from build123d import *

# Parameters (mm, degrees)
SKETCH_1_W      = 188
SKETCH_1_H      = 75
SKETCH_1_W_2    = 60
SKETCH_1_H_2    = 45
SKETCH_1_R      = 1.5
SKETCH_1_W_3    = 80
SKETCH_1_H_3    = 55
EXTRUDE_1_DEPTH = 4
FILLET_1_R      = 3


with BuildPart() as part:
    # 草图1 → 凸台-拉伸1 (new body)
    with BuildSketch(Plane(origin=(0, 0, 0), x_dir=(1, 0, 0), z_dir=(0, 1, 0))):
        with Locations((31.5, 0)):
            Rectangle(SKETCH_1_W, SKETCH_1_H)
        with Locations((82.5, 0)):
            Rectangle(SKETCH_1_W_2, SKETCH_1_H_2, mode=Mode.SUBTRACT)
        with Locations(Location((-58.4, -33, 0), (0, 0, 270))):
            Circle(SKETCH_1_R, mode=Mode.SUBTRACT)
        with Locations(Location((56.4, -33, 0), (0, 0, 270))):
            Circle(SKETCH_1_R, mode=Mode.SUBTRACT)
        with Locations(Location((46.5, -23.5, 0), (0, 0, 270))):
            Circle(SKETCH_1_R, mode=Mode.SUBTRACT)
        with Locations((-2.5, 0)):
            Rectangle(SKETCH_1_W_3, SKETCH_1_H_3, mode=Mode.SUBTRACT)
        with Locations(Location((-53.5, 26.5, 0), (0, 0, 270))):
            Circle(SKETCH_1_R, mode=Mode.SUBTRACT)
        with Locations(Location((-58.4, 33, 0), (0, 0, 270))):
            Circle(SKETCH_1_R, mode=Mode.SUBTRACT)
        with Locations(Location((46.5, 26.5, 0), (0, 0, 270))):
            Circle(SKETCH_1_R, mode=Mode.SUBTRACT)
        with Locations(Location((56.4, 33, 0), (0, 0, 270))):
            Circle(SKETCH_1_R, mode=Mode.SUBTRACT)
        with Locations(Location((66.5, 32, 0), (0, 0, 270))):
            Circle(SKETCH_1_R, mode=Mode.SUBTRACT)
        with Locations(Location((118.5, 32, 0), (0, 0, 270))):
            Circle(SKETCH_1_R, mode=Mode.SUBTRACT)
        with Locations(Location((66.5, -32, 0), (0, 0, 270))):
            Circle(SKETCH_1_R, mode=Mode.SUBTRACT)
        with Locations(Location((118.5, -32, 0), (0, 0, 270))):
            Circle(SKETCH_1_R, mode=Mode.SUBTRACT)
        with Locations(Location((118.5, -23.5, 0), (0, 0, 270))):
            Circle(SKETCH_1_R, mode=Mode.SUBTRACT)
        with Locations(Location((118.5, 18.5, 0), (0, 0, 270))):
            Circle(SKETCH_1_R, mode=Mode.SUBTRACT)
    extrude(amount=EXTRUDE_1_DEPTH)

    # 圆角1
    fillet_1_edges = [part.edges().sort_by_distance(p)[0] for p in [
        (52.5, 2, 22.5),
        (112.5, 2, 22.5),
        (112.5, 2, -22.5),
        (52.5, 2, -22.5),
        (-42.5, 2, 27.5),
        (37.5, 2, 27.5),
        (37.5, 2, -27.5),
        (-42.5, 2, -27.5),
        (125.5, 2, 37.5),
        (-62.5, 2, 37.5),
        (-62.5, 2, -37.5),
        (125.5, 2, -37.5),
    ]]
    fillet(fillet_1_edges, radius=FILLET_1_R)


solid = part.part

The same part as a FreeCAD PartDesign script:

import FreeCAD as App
import Part
import Sketcher
from FreeCAD import Vector


def edges_at(feature, points):
    """Names of the edges that pass closest to the given points."""
    edges = feature.Shape.Edges
    near = lambda p: min(range(len(edges)), key=lambda i: edges[i].distToShape(Part.Vertex(*p))[0])
    return sorted({f"Edge{near(p) + 1}" for p in points})

doc = App.newDocument("Part")
params = doc.addObject("Spreadsheet::Sheet", "Params")
for row, (alias, value) in enumerate([
    ("sketch1_diameter", "3 mm"),
    ("sketch1_width", "188 mm"),
    ("sketch1_width2", "80 mm"),
    ("sketch1_width3", "60 mm"),
    ("sketch1_height", "75 mm"),
    ("pad1_length", "4 mm"),
    ("fillet_radius", "3 mm"),
], start=1):
    params.set(f"A{row}", alias)
    params.set(f"B{row}", "=" + value)
    params.setAlias(f"B{row}", alias)

body = doc.addObject("PartDesign::Body", "Body")

# Sketch on XZ plane
sketch1 = body.newObject("Sketcher::SketchObject", "Sketch")
sketch1.AttachmentSupport = (doc.getObject("XZ_Plane"), [""])
sketch1.MapMode = "FlatFace"
sketch1.addGeometry([
    Part.LineSegment(Vector(-62.5, -37.5, 0), Vector(-62.5, 37.5, 0)),  # 0
    Part.LineSegment(Vector(-62.5, 37.5, 0), Vector(125.5, 37.5, 0)),  # 1
    Part.LineSegment(Vector(125.5, 37.5, 0), Vector(125.5, -37.5, 0)),  # 2
    Part.LineSegment(Vector(125.5, -37.5, 0), Vector(-62.5, -37.5, 0)),  # 3
    Part.Circle(Vector(-58.4, 33, 0), Vector(0, 0, 1), 1.5),  # 4
    Part.Circle(Vector(56.4, 33, 0), Vector(0, 0, 1), 1.5),  # 5
    Part.Circle(Vector(66.5, 32, 0), Vector(0, 0, 1), 1.5),  # 6
    Part.Circle(Vector(46.5, 23.5, 0), Vector(0, 0, 1), 1.5),  # 7
    Part.Circle(Vector(118.5, 32, 0), Vector(0, 0, 1), 1.5),  # 8
    Part.Circle(Vector(118.5, 23.5, 0), Vector(0, 0, 1), 1.5),  # 9
    Part.LineSegment(Vector(37.5, 27.5, 0), Vector(-42.5, 27.5, 0)),  # 10
    Part.LineSegment(Vector(-42.5, 27.5, 0), Vector(-42.5, -27.5, 0)),  # 11
    Part.LineSegment(Vector(-42.5, -27.5, 0), Vector(37.5, -27.5, 0)),  # 12
    Part.LineSegment(Vector(37.5, -27.5, 0), Vector(37.5, 27.5, 0)),  # 13
    Part.Circle(Vector(-53.5, -26.5, 0), Vector(0, 0, 1), 1.5),  # 14
    Part.Circle(Vector(-58.4, -33, 0), Vector(0, 0, 1), 1.5),  # 15
    Part.LineSegment(Vector(112.5, 22.5, 0), Vector(52.5, 22.5, 0)),  # 16
    Part.LineSegment(Vector(52.5, 22.5, 0), Vector(52.5, -22.5, 0)),  # 17
    Part.LineSegment(Vector(52.5, -22.5, 0), Vector(112.5, -22.5, 0)),  # 18
    Part.LineSegment(Vector(112.5, -22.5, 0), Vector(112.5, 22.5, 0)),  # 19
    Part.Circle(Vector(46.5, -26.5, 0), Vector(0, 0, 1), 1.5),  # 20
    Part.Circle(Vector(56.4, -33, 0), Vector(0, 0, 1), 1.5),  # 21
    Part.Circle(Vector(66.5, -32, 0), Vector(0, 0, 1), 1.5),  # 22
    Part.Circle(Vector(118.5, -18.5, 0), Vector(0, 0, 1), 1.5),  # 23
    Part.Circle(Vector(118.5, -32, 0), Vector(0, 0, 1), 1.5),  # 24
], False)
sketch1.addConstraint([
    Sketcher.Constraint("Coincident", 0, 2, 1, 1),
    Sketcher.Constraint("Coincident", 1, 2, 2, 1),
    Sketcher.Constraint("Coincident", 2, 2, 3, 1),
    Sketcher.Constraint("Coincident", 3, 2, 0, 1),
    Sketcher.Constraint("Coincident", 10, 2, 11, 1),
    Sketcher.Constraint("Coincident", 11, 2, 12, 1),
    Sketcher.Constraint("Coincident", 12, 2, 13, 1),
    Sketcher.Constraint("Coincident", 13, 2, 10, 1),
    Sketcher.Constraint("Coincident", 16, 2, 17, 1),
    Sketcher.Constraint("Coincident", 17, 2, 18, 1),
    Sketcher.Constraint("Coincident", 18, 2, 19, 1),
    Sketcher.Constraint("Coincident", 19, 2, 16, 1),
    Sketcher.Constraint("Vertical", 0),
    Sketcher.Constraint("Horizontal", 1),
    Sketcher.Constraint("Vertical", 2),
    Sketcher.Constraint("Horizontal", 3),
    Sketcher.Constraint("Horizontal", 10),
    Sketcher.Constraint("Vertical", 11),
    Sketcher.Constraint("Horizontal", 12),
    Sketcher.Constraint("Vertical", 13),
    Sketcher.Constraint("Horizontal", 16),
    Sketcher.Constraint("Vertical", 17),
    Sketcher.Constraint("Horizontal", 18),
    Sketcher.Constraint("Vertical", 19),
    Sketcher.Constraint("Equal", 4, 5),
    Sketcher.Constraint("Equal", 5, 6),
    Sketcher.Constraint("Equal", 6, 7),
    Sketcher.Constraint("Equal", 7, 8),
    Sketcher.Constraint("Equal", 8, 9),
    Sketcher.Constraint("Equal", 9, 14),
    Sketcher.Constraint("Equal", 14, 15),
    Sketcher.Constraint("Equal", 15, 20),
    Sketcher.Constraint("Equal", 20, 21),
    Sketcher.Constraint("Equal", 21, 22),
    Sketcher.Constraint("Equal", 22, 23),
    Sketcher.Constraint("Equal", 23, 24),
    Sketcher.Constraint("Symmetric", 4, 3, 15, 3, -1),
    Sketcher.Constraint("Symmetric", 5, 3, 21, 3, -1),
    Sketcher.Constraint("Symmetric", 6, 3, 22, 3, -1),
    Sketcher.Constraint("Symmetric", 8, 3, 24, 3, -1),
    Sketcher.Constraint("Horizontal", 4, 3, 5, 3),
    Sketcher.Constraint("Horizontal", 6, 3, 8, 3),
    Sketcher.Constraint("Horizontal", 7, 3, 9, 3),
    Sketcher.Constraint("Horizontal", 14, 3, 20, 3),
    Sketcher.Constraint("Vertical", 8, 3, 9, 3),
    Sketcher.Constraint("Vertical", 7, 3, 20, 3),
    Sketcher.Constraint("Vertical", 9, 3, 23, 3),
    Sketcher.Constraint("Diameter", 4, 3.0),
    Sketcher.Constraint("DistanceX", 1, 1, 1, 2, 188.0),
    Sketcher.Constraint("DistanceX", 10, 2, 10, 1, 80.0),
    Sketcher.Constraint("DistanceX", 16, 2, 16, 1, 60.0),
    Sketcher.Constraint("DistanceY", 0, 1, 0, 2, 75.0),
    Sketcher.Constraint("DistanceY", 11, 2, 11, 1, 55.0),
    Sketcher.Constraint("DistanceY", 17, 2, 17, 1, 45.0),
    Sketcher.Constraint("DistanceY", -1, 1, 4, 3, 33.0),
    Sketcher.Constraint("DistanceY", -1, 1, 6, 3, 32.0),
    Sketcher.Constraint("DistanceX", 7, 3, 6, 3, 20.0),
    Sketcher.Constraint("DistanceX", 6, 3, 8, 3, 52.0),
    Sketcher.Constraint("DistanceX", 14, 3, 7, 3, 100.0),
    Sketcher.Constraint("DistanceY", 14, 3, 7, 3, 50.0),
    Sketcher.Constraint("DistanceY", 23, 3, 9, 3, 42.0),
    Sketcher.Constraint("DistanceX", 0, 2, 14, 3, 9.0),
    Sketcher.Constraint("DistanceY", 14, 3, 0, 2, 64.0),
    Sketcher.Constraint("DistanceX", 0, 2, 10, 2, 20.0),
    Sketcher.Constraint("DistanceY", 10, 2, 0, 2, 10.0),
    Sketcher.Constraint("DistanceX", 7, 3, 16, 2, 6.0),
    Sketcher.Constraint("DistanceY", 16, 2, 7, 3, 1.0),
    Sketcher.Constraint("DistanceX", 4, 3, -1, 1, 58.4),
    Sketcher.Constraint("DistanceX", -1, 1, 5, 3, 56.4),
    Sketcher.Constraint("DistanceX", -1, 1, 6, 3, 66.5),
    Sketcher.Constraint("DistanceY", -1, 1, 7, 3, 23.5),
])
sketch1.setExpression("Constraints[47]", "Params.sketch1_diameter")
sketch1.setExpression("Constraints[48]", "Params.sketch1_width")
sketch1.setExpression("Constraints[49]", "Params.sketch1_width2")
sketch1.setExpression("Constraints[50]", "Params.sketch1_width3")
sketch1.setExpression("Constraints[51]", "Params.sketch1_height")
pad1 = body.newObject("PartDesign::Pad", "Pad")
pad1.Profile = sketch1
pad1.setExpression("Length", "Params.pad1_length")
pad1.Reversed = True
doc.recompute()

fillet = body.newObject("PartDesign::Fillet", "Fillet")
fillet.Base = (pad1, edges_at(pad1, [
    (52.5, 2, 22.5),
    (112.5, 2, 22.5),
    (112.5, 2, -22.5),
    (52.5, 2, -22.5),
    (-42.5, 2, 27.5),
    (37.5, 2, 27.5),
    (37.5, 2, -27.5),
    (-42.5, 2, -27.5),
    (125.5, 2, 37.5),
    (-62.5, 2, 37.5),
    (-62.5, 2, -37.5),
    (125.5, 2, -37.5),
]))
fillet.setExpression("Radius", "Params.fillet_radius")

doc.recompute()
